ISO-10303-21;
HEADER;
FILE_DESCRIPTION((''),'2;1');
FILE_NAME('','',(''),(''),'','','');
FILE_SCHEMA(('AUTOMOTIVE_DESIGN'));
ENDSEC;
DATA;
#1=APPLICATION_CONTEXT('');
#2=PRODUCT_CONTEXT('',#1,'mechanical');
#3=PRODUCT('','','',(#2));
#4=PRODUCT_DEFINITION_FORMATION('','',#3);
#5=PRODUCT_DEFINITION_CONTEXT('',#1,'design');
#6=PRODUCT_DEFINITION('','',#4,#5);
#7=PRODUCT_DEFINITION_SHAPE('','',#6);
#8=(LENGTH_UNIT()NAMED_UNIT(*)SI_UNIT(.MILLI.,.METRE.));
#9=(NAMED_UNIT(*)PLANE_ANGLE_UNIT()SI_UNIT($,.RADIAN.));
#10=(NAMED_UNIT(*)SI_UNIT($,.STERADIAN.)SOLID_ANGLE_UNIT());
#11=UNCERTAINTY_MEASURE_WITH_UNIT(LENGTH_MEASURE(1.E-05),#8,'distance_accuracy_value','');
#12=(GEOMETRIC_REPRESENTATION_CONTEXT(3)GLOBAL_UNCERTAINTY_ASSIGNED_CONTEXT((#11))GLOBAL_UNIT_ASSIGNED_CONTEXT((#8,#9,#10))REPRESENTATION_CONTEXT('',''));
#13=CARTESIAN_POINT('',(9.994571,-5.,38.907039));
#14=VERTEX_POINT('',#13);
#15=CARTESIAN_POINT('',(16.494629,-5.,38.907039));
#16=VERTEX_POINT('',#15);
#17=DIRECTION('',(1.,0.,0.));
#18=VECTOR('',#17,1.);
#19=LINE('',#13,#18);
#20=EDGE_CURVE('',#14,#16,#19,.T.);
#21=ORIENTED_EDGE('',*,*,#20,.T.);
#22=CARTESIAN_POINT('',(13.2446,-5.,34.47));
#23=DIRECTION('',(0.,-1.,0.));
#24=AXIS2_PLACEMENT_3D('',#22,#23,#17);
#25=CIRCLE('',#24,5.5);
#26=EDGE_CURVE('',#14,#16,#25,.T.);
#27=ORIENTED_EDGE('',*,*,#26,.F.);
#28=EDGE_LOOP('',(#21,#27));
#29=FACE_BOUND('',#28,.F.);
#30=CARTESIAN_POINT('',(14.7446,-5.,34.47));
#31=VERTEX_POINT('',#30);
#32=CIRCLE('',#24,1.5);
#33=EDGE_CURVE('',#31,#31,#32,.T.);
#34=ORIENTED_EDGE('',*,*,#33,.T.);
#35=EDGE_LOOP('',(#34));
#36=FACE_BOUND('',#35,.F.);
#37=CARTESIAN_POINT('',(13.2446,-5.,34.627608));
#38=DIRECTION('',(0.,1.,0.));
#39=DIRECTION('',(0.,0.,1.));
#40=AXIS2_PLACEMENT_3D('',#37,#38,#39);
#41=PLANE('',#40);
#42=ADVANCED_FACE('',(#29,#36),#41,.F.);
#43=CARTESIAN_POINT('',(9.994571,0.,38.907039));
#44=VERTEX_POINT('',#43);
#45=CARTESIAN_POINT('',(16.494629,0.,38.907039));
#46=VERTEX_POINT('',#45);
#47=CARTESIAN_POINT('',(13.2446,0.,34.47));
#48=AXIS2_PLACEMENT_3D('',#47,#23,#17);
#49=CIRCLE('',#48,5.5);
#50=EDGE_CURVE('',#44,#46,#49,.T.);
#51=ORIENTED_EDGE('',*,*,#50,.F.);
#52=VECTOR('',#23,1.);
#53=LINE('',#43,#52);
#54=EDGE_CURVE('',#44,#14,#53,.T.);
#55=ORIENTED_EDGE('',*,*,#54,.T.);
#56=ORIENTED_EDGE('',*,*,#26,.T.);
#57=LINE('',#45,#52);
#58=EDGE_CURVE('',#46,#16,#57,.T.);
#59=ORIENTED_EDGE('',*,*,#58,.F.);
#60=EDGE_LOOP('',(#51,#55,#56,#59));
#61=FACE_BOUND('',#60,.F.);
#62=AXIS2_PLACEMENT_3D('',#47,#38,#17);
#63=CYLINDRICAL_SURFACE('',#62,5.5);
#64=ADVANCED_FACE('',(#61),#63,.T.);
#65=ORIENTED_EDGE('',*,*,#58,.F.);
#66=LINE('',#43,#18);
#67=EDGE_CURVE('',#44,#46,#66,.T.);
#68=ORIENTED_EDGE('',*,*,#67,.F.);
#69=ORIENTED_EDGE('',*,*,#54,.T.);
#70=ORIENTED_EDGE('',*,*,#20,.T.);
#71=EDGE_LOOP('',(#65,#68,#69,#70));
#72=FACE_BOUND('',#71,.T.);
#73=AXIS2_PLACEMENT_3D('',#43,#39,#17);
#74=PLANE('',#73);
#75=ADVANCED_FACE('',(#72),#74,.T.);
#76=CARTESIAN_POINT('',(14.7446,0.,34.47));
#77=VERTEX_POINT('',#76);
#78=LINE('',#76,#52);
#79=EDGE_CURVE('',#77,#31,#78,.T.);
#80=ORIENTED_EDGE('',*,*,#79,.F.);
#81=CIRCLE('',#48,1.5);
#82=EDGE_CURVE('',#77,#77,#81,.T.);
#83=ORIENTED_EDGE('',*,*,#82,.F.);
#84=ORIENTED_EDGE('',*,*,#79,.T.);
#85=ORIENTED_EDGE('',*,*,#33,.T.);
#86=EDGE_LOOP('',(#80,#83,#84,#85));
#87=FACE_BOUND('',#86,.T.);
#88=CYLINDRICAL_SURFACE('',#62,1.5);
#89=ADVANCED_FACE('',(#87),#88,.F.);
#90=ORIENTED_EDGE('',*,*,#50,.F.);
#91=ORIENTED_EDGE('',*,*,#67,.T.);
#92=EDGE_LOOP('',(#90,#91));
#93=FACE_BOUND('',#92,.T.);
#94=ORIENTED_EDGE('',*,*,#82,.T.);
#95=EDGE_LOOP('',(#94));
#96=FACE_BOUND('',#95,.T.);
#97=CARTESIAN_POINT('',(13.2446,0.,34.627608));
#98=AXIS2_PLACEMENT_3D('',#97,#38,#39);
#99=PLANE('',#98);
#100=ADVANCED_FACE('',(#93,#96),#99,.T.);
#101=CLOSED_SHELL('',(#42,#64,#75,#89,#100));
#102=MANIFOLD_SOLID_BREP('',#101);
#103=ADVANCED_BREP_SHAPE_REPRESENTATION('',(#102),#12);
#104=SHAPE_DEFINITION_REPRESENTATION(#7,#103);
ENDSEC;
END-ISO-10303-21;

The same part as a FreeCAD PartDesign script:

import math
import FreeCAD as App
import Part
import Sketcher
from FreeCAD import Vector
Q = App.Units.Quantity

doc = App.newDocument("Part")
body = doc.addObject("PartDesign::Body", "Body")

# Sketch on XZ plane
sketch1 = body.newObject("Sketcher::SketchObject", "Sketch")
sketch1.AttachmentSupport = (doc.getObject("XZ_Plane"), [""])
sketch1.MapMode = "FlatFace"
sketch1.addGeometry([
    Part.LineSegment(Vector(16.4946, 38.907, 0), Vector(9.9946, 38.907, 0)),
    Part.ArcOfCircle(Part.Circle(Vector(13.2446, 34.47, 0), Vector(0, 0, 1), 5.499952), math.radians(126.221915), math.radians(413.778085)),
    Part.Circle(Vector(13.2446, 34.47, 0), Vector(0, 0, 1), 1.5),
], False)
sketch1.addConstraint([
    Sketcher.Constraint("Coincident", 0, 1, 1, 2),
    Sketcher.Constraint("Coincident", 1, 1, 0, 2),
    Sketcher.Constraint("Horizontal", 0),
    Sketcher.Constraint("Coincident", 2, 3, 1, 3),
    Sketcher.Constraint("Diameter", 2, Q("3 mm")),
    Sketcher.Constraint("Radius", 1, Q("5.5 mm")),
    Sketcher.Constraint("DistanceX", 0, 2, 0, 1, Q("6.5 mm")),
    Sketcher.Constraint("DistanceY", -1, 1, 1, 3, Q("34.47 mm")),
    Sketcher.Constraint("DistanceX", -1, 1, 1, 3, Q("13.2446 mm")),
])
pad1 = body.newObject("PartDesign::Pad", "Pad")
pad1.Profile = sketch1
pad1.Length = 5

doc.recompute()
